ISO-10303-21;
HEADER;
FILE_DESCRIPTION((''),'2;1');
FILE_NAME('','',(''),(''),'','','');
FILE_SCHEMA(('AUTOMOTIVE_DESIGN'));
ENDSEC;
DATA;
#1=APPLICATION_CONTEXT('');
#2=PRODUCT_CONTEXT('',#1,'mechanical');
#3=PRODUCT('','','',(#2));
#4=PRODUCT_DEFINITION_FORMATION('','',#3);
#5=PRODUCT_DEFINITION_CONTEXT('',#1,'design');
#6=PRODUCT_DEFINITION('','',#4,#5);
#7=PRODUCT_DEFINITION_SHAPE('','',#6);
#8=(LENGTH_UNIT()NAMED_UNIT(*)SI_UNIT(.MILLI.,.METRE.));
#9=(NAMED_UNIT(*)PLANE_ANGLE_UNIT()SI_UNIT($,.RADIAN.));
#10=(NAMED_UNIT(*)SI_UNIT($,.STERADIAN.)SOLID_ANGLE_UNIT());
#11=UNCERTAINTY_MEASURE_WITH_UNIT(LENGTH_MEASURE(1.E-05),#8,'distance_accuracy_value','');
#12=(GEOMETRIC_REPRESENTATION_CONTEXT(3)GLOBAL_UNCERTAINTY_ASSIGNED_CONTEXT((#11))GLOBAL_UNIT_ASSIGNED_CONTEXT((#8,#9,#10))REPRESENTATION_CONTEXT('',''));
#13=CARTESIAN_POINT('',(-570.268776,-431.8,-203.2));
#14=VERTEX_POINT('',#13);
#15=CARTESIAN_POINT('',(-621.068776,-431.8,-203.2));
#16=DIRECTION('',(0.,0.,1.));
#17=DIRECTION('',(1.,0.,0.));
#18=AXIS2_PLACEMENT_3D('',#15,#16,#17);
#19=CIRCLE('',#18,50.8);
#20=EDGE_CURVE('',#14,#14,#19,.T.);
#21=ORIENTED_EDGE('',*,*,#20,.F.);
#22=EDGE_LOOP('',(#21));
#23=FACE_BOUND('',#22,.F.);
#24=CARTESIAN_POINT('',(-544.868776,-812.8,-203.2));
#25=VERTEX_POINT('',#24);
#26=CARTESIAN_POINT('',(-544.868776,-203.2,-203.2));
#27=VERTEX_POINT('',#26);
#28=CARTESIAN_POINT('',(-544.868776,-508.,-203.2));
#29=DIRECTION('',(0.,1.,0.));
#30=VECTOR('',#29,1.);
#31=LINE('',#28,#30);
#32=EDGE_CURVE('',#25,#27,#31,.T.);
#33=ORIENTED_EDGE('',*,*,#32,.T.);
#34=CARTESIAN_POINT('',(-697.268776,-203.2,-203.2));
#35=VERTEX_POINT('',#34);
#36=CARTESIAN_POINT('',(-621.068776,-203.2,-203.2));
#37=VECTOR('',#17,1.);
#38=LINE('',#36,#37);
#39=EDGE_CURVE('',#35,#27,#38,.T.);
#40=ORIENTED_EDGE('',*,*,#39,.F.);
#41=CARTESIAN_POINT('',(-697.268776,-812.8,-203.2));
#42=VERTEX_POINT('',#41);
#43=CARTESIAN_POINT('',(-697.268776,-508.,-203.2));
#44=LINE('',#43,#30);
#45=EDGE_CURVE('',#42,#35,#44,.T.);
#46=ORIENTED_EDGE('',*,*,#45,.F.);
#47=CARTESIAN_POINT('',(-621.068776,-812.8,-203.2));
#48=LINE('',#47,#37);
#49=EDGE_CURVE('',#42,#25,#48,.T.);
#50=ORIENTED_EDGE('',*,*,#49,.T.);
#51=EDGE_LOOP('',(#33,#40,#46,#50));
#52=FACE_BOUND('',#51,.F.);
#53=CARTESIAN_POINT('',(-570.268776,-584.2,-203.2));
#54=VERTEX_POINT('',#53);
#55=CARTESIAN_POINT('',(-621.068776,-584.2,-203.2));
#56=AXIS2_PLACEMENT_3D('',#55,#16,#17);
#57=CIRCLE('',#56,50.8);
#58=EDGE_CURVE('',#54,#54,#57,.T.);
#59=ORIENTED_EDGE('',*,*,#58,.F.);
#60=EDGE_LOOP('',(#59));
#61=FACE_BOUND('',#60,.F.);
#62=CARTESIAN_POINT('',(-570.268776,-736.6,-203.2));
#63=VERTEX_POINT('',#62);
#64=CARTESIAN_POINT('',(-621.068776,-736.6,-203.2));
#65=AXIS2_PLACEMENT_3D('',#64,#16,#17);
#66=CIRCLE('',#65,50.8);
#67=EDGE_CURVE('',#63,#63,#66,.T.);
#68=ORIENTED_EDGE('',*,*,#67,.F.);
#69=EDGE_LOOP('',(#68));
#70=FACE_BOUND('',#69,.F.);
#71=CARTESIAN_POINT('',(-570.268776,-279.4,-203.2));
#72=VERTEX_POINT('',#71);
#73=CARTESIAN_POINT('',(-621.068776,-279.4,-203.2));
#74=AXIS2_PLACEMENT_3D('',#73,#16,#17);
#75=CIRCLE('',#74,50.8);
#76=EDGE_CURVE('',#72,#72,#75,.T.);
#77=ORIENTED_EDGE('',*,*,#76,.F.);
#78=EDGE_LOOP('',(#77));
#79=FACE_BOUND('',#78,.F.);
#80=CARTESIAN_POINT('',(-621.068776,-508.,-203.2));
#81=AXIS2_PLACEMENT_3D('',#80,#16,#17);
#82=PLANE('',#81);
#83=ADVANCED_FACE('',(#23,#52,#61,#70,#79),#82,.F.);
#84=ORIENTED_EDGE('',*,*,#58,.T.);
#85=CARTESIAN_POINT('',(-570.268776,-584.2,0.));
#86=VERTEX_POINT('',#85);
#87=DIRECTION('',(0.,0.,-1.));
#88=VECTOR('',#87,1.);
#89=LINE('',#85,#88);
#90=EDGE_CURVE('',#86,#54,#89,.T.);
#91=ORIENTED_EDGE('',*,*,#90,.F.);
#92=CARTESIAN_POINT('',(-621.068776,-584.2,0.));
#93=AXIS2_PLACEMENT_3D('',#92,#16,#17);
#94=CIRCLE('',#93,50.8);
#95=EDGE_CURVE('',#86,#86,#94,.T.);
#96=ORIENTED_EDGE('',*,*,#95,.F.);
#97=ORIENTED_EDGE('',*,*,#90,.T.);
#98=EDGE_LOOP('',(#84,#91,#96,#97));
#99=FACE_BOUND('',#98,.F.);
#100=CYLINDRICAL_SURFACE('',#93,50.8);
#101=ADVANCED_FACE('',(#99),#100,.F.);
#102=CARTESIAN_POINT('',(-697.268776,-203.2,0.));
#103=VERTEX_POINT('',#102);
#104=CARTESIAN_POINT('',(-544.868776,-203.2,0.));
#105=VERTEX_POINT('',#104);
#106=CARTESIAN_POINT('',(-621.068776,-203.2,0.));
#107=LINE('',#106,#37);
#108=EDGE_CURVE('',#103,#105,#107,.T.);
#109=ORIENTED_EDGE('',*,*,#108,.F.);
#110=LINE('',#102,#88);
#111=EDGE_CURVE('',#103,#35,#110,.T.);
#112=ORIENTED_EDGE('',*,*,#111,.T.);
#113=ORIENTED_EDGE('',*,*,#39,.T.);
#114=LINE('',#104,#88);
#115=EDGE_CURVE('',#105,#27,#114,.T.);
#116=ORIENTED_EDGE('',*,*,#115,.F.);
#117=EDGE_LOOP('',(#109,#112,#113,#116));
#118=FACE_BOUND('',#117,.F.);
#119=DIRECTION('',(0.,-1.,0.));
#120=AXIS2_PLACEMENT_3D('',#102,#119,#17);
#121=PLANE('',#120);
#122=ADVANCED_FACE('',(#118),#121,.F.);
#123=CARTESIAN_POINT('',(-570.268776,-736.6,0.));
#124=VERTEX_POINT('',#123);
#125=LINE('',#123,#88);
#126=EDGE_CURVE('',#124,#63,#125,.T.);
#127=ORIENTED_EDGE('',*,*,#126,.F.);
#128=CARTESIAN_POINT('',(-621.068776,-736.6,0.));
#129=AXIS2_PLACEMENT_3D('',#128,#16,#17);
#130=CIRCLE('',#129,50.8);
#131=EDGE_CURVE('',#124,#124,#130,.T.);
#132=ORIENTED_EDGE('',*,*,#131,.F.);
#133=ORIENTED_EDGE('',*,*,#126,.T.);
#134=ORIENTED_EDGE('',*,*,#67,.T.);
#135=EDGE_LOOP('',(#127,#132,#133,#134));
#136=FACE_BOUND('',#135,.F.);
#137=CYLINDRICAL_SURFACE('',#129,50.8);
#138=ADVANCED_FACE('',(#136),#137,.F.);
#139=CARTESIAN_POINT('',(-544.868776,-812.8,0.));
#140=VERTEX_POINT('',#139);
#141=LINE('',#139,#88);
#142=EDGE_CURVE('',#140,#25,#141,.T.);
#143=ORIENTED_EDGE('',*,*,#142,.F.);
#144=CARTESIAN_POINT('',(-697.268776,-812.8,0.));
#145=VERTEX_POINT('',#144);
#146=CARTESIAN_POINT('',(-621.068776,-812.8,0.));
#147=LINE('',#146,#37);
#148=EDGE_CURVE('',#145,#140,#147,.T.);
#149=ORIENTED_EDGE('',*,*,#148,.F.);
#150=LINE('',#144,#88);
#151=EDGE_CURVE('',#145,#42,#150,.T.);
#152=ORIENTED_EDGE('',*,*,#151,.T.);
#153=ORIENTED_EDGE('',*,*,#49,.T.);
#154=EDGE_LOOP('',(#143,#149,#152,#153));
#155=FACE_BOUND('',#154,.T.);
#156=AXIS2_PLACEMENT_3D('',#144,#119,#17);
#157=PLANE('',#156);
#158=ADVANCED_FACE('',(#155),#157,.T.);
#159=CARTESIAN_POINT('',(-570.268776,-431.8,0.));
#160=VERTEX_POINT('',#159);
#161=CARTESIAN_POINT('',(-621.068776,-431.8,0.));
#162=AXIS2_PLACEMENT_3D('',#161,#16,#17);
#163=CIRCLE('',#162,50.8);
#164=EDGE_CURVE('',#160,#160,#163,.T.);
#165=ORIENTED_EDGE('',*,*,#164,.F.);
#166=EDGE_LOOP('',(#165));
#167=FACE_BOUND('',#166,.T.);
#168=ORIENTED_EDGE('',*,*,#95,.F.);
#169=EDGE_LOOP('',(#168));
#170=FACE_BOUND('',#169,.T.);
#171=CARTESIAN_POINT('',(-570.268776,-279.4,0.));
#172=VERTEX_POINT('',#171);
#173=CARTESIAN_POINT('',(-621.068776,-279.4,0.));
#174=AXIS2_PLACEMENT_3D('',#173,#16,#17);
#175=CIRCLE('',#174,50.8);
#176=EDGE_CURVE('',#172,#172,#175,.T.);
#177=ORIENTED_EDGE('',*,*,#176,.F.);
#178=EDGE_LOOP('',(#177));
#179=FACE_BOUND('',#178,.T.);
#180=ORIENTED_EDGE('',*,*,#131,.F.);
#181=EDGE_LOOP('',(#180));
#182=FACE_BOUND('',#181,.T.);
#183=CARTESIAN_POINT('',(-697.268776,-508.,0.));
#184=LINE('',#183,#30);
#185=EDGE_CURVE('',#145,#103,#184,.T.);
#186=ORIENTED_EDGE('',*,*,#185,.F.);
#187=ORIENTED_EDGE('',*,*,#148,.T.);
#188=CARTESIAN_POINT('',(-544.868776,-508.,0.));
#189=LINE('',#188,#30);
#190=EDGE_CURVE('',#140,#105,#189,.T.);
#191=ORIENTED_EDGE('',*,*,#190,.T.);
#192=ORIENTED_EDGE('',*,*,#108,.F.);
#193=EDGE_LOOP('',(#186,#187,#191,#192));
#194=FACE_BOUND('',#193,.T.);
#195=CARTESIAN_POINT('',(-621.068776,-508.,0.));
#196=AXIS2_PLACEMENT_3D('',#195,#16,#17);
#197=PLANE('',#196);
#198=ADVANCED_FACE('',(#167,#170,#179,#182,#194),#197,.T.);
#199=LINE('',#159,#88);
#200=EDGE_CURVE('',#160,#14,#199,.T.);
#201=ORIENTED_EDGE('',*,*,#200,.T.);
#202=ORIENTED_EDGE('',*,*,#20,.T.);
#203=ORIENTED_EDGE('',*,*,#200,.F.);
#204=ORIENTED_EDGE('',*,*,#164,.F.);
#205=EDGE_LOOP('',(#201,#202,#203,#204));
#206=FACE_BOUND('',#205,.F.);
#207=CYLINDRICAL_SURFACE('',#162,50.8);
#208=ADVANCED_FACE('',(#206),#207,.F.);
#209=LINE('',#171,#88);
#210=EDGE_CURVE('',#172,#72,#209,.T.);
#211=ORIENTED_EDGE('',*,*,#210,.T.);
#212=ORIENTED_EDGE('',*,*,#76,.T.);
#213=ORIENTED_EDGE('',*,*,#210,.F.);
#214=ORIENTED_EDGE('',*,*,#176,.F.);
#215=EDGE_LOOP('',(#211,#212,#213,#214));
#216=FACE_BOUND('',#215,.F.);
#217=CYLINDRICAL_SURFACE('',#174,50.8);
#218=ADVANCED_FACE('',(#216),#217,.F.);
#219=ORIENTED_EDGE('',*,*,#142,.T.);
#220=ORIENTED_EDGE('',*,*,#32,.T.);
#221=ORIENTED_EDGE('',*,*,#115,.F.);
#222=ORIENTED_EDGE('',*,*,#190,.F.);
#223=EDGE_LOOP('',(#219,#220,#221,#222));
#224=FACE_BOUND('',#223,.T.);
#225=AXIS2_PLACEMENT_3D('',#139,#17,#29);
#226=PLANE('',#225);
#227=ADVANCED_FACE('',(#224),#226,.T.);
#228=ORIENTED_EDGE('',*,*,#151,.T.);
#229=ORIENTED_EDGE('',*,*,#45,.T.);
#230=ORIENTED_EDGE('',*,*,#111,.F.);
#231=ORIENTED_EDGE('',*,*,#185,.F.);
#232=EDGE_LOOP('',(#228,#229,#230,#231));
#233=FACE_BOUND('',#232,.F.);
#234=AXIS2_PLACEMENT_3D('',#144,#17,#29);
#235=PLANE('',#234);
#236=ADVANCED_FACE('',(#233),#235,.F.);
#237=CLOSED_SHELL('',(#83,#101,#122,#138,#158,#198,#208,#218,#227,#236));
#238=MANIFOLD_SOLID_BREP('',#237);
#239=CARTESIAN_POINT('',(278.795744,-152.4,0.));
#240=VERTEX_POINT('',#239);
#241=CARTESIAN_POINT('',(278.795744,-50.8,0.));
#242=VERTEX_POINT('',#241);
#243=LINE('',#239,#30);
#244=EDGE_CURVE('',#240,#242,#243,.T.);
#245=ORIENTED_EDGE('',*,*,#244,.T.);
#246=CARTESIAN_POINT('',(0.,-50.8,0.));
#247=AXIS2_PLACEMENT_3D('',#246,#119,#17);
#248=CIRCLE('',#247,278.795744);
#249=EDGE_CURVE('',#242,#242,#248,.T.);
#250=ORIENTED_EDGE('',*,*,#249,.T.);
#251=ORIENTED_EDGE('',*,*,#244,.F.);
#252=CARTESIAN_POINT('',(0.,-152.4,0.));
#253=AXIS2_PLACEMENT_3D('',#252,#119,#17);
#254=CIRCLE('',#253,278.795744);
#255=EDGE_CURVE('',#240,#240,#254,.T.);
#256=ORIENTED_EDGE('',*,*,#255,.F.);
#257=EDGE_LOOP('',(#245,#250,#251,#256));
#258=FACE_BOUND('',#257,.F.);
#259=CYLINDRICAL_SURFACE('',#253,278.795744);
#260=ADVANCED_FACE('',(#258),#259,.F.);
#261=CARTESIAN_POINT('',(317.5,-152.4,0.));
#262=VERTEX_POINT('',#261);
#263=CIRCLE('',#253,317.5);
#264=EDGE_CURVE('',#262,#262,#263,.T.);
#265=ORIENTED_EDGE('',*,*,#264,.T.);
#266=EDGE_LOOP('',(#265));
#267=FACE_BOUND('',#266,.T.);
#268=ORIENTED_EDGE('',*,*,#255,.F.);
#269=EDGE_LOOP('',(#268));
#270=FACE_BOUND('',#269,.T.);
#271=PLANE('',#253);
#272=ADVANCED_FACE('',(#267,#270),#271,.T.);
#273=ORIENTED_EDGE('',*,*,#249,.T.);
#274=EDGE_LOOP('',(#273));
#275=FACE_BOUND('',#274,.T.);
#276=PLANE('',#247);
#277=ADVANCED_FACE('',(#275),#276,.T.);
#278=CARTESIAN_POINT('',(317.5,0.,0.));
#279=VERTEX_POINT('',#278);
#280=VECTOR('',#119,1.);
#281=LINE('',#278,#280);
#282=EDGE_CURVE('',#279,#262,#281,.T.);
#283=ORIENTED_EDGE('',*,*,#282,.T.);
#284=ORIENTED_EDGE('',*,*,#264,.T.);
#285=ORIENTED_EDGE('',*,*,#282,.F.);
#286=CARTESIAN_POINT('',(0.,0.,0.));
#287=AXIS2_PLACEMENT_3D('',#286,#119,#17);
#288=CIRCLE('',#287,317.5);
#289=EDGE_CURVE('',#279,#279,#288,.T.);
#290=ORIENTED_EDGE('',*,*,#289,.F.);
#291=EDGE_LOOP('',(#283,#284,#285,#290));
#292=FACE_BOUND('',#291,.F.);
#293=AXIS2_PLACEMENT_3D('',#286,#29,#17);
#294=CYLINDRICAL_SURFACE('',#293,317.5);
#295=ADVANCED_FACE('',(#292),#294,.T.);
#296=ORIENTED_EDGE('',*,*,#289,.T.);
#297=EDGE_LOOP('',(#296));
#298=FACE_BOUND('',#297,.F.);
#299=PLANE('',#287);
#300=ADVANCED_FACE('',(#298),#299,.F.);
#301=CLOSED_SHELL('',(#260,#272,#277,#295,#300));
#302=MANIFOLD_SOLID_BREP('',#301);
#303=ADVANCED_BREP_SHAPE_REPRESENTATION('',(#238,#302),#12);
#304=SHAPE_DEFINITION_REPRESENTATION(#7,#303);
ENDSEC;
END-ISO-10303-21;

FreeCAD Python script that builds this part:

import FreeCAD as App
import Part
import Sketcher
Q = App.Units.Quantity

doc = App.newDocument("Part")
body = doc.addObject("PartDesign::Body", "Body")

# Sketch on XZ plane
sketch1 = doc.addObject("Sketcher::SketchObject", "Sketch")
body.addObject(sketch1)
sketch1.AttachmentSupport = (doc.XZ_Plane, [""])
sketch1.MapMode = "FlatFace"
sketch1.addGeometry(Part.Circle(App.Vector(0, 0, 0), App.Vector(0, 0, 1), 318), False)
sketch1.addConstraint([
    Sketcher.Constraint("Coincident", 0, 3, -1, 1),
    Sketcher.Constraint("Diameter", 0, Q("25 in")),
])
pad1 = doc.addObject("PartDesign::Pad", "Pad")
body.addObject(pad1)
pad1.Profile = sketch1
pad1.Length = Q("6 in")

# Sketch on XZ plane
sketch2 = doc.addObject("Sketcher::SketchObject", "Sketch001")
body.addObject(sketch2)
sketch2.AttachmentSupport = (doc.XZ_Plane, [""])
sketch2.MapMode = "FlatFace"
sketch2.AttachmentOffset = App.Placement(App.Vector(0, 0, 6 * 25.4), App.Rotation())
sketch2.addGeometry(Part.Circle(App.Vector(0, 0, 0), App.Vector(0, 0, 1), 279), False)
sketch2.addConstraint([
    Sketcher.Constraint("Coincident", 0, 3, -1, 1),
    Sketcher.Constraint("Diameter", 0, 557.591488),
])
pocket1 = doc.addObject("PartDesign::Pocket", "Pocket")
body.addObject(pocket1)
pocket1.Profile = sketch2
pocket1.Length = Q("4 in")
body2 = doc.addObject("PartDesign::Body", "Body001")

# Sketch on XY plane
sketch3 = doc.addObject("Sketcher::SketchObject", "Sketch002")
body2.addObject(sketch3)
sketch3.AttachmentSupport = (doc.getObject("XY_Plane001"), [""])
sketch3.MapMode = "FlatFace"
sketch3.addGeometry([
    Part.LineSegment(App.Vector(-697, -203, 0), App.Vector(-697, -813, 0)),  # 0
    Part.LineSegment(App.Vector(-697, -813, 0), App.Vector(-545, -813, 0)),  # 1
    Part.LineSegment(App.Vector(-545, -813, 0), App.Vector(-545, -203, 0)),  # 2
    Part.LineSegment(App.Vector(-545, -203, 0), App.Vector(-697, -203, 0)),  # 3
    Part.Circle(App.Vector(-621, -737, 0), App.Vector(0, 0, 1), 51),  # 4
    Part.Circle(App.Vector(-621, -584, 0), App.Vector(0, 0, 1), 51),  # 5
    Part.Circle(App.Vector(-621, -432, 0), App.Vector(0, 0, 1), 51),  # 6
    Part.Circle(App.Vector(-621, -279, 0), App.Vector(0, 0, 1), 51),  # 7
], False)
sketch3.addConstraint([
    Sketcher.Constraint("Coincident", 0, 2, 1, 1),
    Sketcher.Constraint("Coincident", 1, 2, 2, 1),
    Sketcher.Constraint("Coincident", 2, 2, 3, 1),
    Sketcher.Constraint("Coincident", 3, 2, 0, 1),
    Sketcher.Constraint("Vertical", 0),
    Sketcher.Constraint("Horizontal", 1),
    Sketcher.Constraint("Vertical", 2),
    Sketcher.Constraint("Horizontal", 3),
    Sketcher.Constraint("Equal", 4, 5),
    Sketcher.Constraint("Equal", 5, 6),
    Sketcher.Constraint("Equal", 6, 7),
    Sketcher.Constraint("Vertical", 4, 3, 5, 3),
    Sketcher.Constraint("Vertical", 5, 3, 6, 3),
    Sketcher.Constraint("Vertical", 6, 3, 7, 3),
    Sketcher.Constraint("Diameter", 4, Q("4 in")),
    Sketcher.Constraint("DistanceX", 1, 1, 1, 2, Q("6 in")),
    Sketcher.Constraint("DistanceY", 0, 2, 0, 1, Q("24 in")),
    Sketcher.Constraint("DistanceY", 4, 3, -1, 1, Q("29 in")),
    Sketcher.Constraint("DistanceY", 5, 3, -1, 1, Q("23 in")),
    Sketcher.Constraint("DistanceY", 6, 3, -1, 1, Q("17 in")),
    Sketcher.Constraint("DistanceY", 7, 3, -1, 1, Q("11 in")),
    Sketcher.Constraint("DistanceY", 0, 2, -1, 1, Q("32 in")),
    Sketcher.Constraint("DistanceX", 0, 2, 4, 3, Q("3 in")),
    Sketcher.Constraint("DistanceX", 4, 3, -1, 1, 621.068776),
])
pad2 = doc.addObject("PartDesign::Pad", "Pad001")
body2.addObject(pad2)
pad2.Profile = sketch3
pad2.Length = Q("8 in")
pad2.Reversed = True

doc.recompute()
